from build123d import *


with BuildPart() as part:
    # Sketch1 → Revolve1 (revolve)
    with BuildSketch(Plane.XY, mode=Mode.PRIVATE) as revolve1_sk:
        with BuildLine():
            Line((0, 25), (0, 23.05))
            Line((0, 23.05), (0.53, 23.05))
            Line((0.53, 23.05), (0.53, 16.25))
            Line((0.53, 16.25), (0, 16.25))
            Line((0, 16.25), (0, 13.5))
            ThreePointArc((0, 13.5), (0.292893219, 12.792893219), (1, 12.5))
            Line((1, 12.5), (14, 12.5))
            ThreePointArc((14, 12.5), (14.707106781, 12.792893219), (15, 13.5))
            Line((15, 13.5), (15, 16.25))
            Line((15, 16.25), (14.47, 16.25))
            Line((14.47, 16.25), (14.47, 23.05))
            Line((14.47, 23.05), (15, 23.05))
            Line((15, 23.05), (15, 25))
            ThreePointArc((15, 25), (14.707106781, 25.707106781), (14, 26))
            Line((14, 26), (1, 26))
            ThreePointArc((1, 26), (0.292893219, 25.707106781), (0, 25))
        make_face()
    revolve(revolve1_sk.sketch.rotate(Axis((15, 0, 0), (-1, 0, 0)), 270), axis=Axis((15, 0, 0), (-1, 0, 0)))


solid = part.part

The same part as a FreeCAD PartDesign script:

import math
import FreeCAD as App
import Part
import Sketcher
from FreeCAD import Vector
Q = App.Units.Quantity

doc = App.newDocument("Part")
params = doc.addObject("Spreadsheet::Sheet", "Params")
for row, (alias, value) in enumerate([
    ("sketch1_radius", "1 mm"),
    ("sketch1_width", "13 mm"),
    ("sketch1_height", "6.8 mm"),
    ("sketch1_width2", "0.53 mm"),
    ("sketch1_height2", "1.95 mm"),
    ("revolution_angle", "360 deg"),
], start=1):
    params.set(f"A{row}", alias)
    params.set(f"B{row}", "=" + value)
    params.setAlias(f"B{row}", alias)

body = doc.addObject("PartDesign::Body", "Body")

sketch1 = body.newObject("Sketcher::SketchObject", "Sketch")
sketch1.AttachmentSupport = (doc.getObject("XY_Plane"), [""])
sketch1.MapMode = "FlatFace"
sketch1.addGeometry([
    Part.LineSegment(Vector(0, 25, 0), Vector(0, 23.05, 0)),
    Part.LineSegment(Vector(0, 23.05, 0), Vector(0.53, 23.05, 0)),
    Part.LineSegment(Vector(0.53, 23.05, 0), Vector(0.53, 16.25, 0)),
    Part.LineSegment(Vector(0.53, 16.25, 0), Vector(0, 16.25, 0)),
    Part.LineSegment(Vector(0, 16.25, 0), Vector(0, 13.5, 0)),
    Part.ArcOfCircle(Part.Circle(Vector(1, 13.5, 0), Vector(0, 0, 1), 1), math.radians(-180), math.radians(-90)),
    Part.LineSegment(Vector(1, 12.5, 0), Vector(14, 12.5, 0)),
    Part.ArcOfCircle(Part.Circle(Vector(14, 13.5, 0), Vector(0, 0, 1), 1), math.radians(-90), math.radians(0)),
    Part.LineSegment(Vector(15, 13.5, 0), Vector(15, 16.25, 0)),
    Part.LineSegment(Vector(15, 16.25, 0), Vector(14.47, 16.25, 0)),
    Part.LineSegment(Vector(14.47, 16.25, 0), Vector(14.47, 23.05, 0)),
    Part.LineSegment(Vector(14.47, 23.05, 0), Vector(15, 23.05, 0)),
    Part.LineSegment(Vector(15, 23.05, 0), Vector(15, 25, 0)),
    Part.ArcOfCircle(Part.Circle(Vector(14, 25, 0), Vector(0, 0, 1), 1), math.radians(0), math.radians(90)),
    Part.LineSegment(Vector(14, 26, 0), Vector(1, 26, 0)),
    Part.ArcOfCircle(Part.Circle(Vector(1, 25, 0), Vector(0, 0, 1), 1), math.radians(90), math.radians(180)),
], False)
sketch1.addConstraint([
    Sketcher.Constraint("Coincident", 0, 2, 1, 1),
    Sketcher.Constraint("Coincident", 1, 2, 2, 1),
    Sketcher.Constraint("Coincident", 2, 2, 3, 1),
    Sketcher.Constraint("Coincident", 3, 2, 4, 1),
    Sketcher.Constraint("Tangent", 4, 2, 5, 1),
    Sketcher.Constraint("Tangent", 5, 2, 6, 1),
    Sketcher.Constraint("Tangent", 6, 2, 7, 1),
    Sketcher.Constraint("Tangent", 7, 2, 8, 1),
    Sketcher.Constraint("Coincident", 8, 2, 9, 1),
    Sketcher.Constraint("Coincident", 9, 2, 10, 1),
    Sketcher.Constraint("Coincident", 10, 2, 11, 1),
    Sketcher.Constraint("Coincident", 11, 2, 12, 1),
    Sketcher.Constraint("Tangent", 12, 2, 13, 1),
    Sketcher.Constraint("Tangent", 13, 2, 14, 1),
    Sketcher.Constraint("Tangent", 14, 2, 15, 1),
    Sketcher.Constraint("Tangent", 15, 2, 0, 1),
    Sketcher.Constraint("Vertical", 0),
    Sketcher.Constraint("Horizontal", 1),
    Sketcher.Constraint("Vertical", 2),
    Sketcher.Constraint("Horizontal", 3),
    Sketcher.Constraint("Vertical", 4),
    Sketcher.Constraint("Horizontal", 6),
    Sketcher.Constraint("Vertical", 8),
    Sketcher.Constraint("Horizontal", 9),
    Sketcher.Constraint("Vertical", 10),
    Sketcher.Constraint("Horizontal", 11),
    Sketcher.Constraint("Vertical", 12),
    Sketcher.Constraint("Horizontal", 14),
    Sketcher.Constraint("Equal", 5, 7),
    Sketcher.Constraint("Equal", 7, 13),
    Sketcher.Constraint("Equal", 13, 15),
    Sketcher.Constraint("PointOnObject", 0, 2, -2),
    Sketcher.Constraint("PointOnObject", 3, 2, -2),
    Sketcher.Constraint("Horizontal", 3, 2, 8, 2),
    Sketcher.Constraint("Horizontal", 1, 2, 10, 2),
    Sketcher.Constraint("Vertical", 7, 3, 13, 3),
    Sketcher.Constraint("Equal", 3, 9),
    Sketcher.Constraint("Radius", 5, Q("1 mm")),
    Sketcher.Constraint("DistanceX", 6, 1, 6, 2, Q("13 mm")),
    Sketcher.Constraint("DistanceY", 2, 2, 2, 1, Q("6.8 mm")),
    Sketcher.Constraint("DistanceY", -1, 1, 13, 3, Q("25 mm")),
    Sketcher.Constraint("DistanceX", 1, 1, 1, 2, Q("0.53 mm")),
    Sketcher.Constraint("DistanceY", 0, 2, 0, 1, Q("1.95 mm")),
    Sketcher.Constraint("DistanceY", 4, 2, 4, 1, Q("2.75 mm")),
])
sketch1.setExpression("Constraints[37]", "Params.sketch1_radius")
sketch1.setExpression("Constraints[38]", "Params.sketch1_width")
sketch1.setExpression("Constraints[39]", "Params.sketch1_height")
sketch1.setExpression("Constraints[41]", "Params.sketch1_width2")
sketch1.setExpression("Constraints[42]", "Params.sketch1_height2")
revolution = body.newObject("PartDesign::Revolution", "Revolution")
revolution.Profile = sketch1
revolution.ReferenceAxis = (sketch1, ["H_Axis"])
revolution.setExpression("Angle", "Params.revolution_angle")

doc.recompute()
